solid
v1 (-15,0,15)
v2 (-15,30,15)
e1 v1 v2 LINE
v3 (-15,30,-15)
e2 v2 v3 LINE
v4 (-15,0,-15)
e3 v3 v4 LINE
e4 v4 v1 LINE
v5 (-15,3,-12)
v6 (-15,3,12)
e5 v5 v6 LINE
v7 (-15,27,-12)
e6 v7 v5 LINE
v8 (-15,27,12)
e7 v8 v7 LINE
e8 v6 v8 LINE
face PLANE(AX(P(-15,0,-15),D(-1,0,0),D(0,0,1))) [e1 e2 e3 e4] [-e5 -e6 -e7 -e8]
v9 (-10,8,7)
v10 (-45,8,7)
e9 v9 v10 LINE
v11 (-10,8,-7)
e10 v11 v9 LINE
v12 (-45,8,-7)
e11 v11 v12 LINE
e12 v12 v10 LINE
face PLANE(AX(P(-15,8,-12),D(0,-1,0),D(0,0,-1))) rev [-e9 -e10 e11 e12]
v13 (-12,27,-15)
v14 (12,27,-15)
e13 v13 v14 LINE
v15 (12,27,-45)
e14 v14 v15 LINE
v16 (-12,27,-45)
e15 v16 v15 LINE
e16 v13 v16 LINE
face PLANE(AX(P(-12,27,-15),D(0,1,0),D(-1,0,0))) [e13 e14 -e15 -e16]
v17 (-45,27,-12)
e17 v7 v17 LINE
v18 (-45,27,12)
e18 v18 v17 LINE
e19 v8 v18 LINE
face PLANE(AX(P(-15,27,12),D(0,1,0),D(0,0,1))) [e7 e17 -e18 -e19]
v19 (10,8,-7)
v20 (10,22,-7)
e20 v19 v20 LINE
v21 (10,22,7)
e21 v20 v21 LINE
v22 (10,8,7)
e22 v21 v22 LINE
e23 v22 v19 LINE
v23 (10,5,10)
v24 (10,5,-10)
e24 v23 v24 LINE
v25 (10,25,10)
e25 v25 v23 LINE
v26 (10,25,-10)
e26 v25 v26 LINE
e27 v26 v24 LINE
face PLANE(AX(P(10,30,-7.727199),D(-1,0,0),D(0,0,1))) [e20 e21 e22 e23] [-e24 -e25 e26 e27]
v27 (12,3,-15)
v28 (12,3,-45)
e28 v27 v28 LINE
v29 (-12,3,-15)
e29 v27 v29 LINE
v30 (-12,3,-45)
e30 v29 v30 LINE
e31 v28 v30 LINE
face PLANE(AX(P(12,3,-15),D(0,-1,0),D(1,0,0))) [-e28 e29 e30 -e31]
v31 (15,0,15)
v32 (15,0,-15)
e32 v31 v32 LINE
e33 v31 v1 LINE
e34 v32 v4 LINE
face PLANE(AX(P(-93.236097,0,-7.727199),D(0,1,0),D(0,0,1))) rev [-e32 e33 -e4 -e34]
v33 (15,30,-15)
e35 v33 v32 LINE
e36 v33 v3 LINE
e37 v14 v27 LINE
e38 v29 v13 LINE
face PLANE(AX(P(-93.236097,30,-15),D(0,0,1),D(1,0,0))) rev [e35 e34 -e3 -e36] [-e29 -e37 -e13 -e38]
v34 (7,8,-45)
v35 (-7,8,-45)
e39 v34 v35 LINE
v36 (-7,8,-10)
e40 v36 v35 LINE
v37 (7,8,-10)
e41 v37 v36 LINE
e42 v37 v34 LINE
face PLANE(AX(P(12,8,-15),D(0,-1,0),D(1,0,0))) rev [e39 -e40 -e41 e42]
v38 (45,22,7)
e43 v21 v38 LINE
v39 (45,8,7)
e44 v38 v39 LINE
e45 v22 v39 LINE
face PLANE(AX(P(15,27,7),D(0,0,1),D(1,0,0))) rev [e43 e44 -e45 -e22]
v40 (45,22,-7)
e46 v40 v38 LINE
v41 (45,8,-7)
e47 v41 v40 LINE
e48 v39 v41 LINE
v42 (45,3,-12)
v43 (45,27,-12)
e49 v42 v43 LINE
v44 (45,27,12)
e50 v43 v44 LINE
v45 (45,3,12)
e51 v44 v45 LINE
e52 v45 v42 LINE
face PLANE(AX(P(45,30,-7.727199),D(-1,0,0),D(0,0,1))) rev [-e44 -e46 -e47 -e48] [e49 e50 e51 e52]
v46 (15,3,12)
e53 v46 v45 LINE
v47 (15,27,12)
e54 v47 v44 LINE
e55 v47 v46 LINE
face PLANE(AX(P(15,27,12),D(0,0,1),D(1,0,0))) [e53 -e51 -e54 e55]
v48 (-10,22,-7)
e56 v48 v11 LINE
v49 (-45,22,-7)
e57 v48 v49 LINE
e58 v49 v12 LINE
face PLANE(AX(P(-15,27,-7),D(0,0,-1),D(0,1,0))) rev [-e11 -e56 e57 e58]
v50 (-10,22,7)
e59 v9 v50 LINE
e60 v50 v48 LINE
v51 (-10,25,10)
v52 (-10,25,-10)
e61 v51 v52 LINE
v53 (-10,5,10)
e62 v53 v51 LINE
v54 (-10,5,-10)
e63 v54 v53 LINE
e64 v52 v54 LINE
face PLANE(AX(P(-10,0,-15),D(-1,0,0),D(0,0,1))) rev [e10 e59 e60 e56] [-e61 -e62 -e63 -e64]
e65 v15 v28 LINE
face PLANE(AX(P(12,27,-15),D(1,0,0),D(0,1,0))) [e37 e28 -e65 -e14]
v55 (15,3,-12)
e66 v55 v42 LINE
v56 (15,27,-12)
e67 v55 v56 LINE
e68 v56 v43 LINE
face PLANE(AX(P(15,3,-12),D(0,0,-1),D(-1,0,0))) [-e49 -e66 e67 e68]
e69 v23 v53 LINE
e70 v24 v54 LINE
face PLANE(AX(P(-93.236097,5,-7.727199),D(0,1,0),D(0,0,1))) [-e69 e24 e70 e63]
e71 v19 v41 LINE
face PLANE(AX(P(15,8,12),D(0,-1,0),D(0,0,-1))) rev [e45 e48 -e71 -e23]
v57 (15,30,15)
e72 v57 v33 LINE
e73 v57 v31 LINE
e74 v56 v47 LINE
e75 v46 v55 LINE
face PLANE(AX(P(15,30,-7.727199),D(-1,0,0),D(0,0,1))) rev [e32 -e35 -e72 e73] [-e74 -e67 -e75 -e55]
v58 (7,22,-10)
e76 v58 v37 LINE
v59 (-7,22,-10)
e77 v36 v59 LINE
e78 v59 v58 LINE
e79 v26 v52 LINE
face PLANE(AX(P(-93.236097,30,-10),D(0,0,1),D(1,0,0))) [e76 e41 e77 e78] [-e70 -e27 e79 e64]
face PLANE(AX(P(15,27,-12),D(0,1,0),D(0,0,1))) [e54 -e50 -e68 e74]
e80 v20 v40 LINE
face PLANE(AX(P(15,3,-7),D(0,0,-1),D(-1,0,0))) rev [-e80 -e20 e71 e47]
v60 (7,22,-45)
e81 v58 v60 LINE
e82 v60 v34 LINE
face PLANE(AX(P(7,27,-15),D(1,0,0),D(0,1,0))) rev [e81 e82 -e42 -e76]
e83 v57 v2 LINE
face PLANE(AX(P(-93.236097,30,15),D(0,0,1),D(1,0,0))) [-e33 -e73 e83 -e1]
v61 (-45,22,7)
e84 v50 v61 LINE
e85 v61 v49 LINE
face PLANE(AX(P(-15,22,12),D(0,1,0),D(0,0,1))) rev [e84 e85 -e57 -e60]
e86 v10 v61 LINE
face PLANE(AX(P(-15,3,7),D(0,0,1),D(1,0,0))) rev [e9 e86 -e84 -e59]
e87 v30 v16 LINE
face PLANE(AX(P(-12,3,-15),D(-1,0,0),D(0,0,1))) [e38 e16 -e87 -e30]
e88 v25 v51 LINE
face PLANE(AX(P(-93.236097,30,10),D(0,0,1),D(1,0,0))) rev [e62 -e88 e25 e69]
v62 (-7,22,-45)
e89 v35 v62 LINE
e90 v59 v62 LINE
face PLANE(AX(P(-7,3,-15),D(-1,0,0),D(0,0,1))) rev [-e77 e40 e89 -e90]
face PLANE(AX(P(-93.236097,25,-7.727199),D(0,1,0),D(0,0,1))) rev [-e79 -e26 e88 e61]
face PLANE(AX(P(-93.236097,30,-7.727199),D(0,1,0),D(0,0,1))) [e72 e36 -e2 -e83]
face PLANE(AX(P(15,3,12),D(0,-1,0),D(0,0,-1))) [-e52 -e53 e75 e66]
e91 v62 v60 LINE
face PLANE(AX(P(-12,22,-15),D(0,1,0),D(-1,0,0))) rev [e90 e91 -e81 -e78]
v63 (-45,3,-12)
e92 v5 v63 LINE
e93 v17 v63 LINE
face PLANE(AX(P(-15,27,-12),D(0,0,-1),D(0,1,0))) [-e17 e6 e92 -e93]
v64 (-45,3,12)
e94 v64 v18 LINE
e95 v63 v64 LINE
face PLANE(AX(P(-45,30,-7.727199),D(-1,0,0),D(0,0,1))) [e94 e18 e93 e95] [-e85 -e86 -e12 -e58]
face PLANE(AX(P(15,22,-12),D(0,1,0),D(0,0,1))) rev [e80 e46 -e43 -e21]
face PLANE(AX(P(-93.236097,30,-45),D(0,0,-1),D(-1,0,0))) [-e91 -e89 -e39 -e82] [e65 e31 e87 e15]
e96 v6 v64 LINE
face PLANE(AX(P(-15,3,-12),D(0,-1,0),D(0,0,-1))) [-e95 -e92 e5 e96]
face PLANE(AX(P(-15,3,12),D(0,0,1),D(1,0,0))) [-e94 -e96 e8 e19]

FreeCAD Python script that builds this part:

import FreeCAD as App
import Part
import Sketcher

V = App.Vector
Q = App.Units.Quantity


def faces_at(feature, points):
    """Names of the faces that lie closest to the given points."""
    faces = feature.Shape.Faces
    near = lambda p: min(range(len(faces)), key=lambda i: faces[i].distToShape(Part.Vertex(*p))[0])
    return sorted({f"Face{near(p) + 1}" for p in points})


def add_polygon(sketch, points):
    """Adds a closed chain of lines whose ends are joined by coincident constraints."""
    first, n = sketch.GeometryCount, len(points)
    for a, b in zip(points, points[1:] + points[:1]):
        sketch.addGeometry(Part.LineSegment(App.Vector(*a, 0), App.Vector(*b, 0)), False)
    for i in range(n):
        sketch.addConstraint(Sketcher.Constraint("Coincident", first + i, 2, first + (i + 1) % n, 1))

doc = App.newDocument("Part")
params = doc.addObject("Spreadsheet::Sheet", "Params")
for row, (alias, value) in enumerate([
    ("sketch1_width", "30 mm"),
    ("pad1_length", "30 mm"),
    ("sketch2_width", "30 mm"),
    ("sketch2_width2", "24 mm"),
    ("pocket1_length", "30 mm"),
    ("sketch3_width", "30 mm"),
    ("sketch3_width2", "24 mm"),
    ("pocket2_length", "30 mm"),
    ("sketch4_width", "30 mm"),
    ("sketch4_width2", "24 mm"),
    ("pocket3_length", "30 mm"),
    ("thickness_wall", "5 mm"),
], start=1):
    params.set(f"A{row}", alias)
    params.set(f"B{row}", "=" + value)
    params.setAlias(f"B{row}", alias)

body = doc.addObject("PartDesign::Body", "Body")

# Sketch on XZ plane
sketch1 = doc.addObject("Sketcher::SketchObject", "Sketch")
body.addObject(sketch1)
sketch1.AttachmentSupport = (doc.XZ_Plane, [""])
sketch1.MapMode = "FlatFace"
add_polygon(sketch1, [(-15, -45), (-15, -15), (-45, -15), (-45, 15), (45, 15), (45, -15), (15, -15), (15, -45)])  # lines 0-7
sketch1.addConstraint(Sketcher.Constraint("Vertical", 0))
sketch1.addConstraint(Sketcher.Constraint("Horizontal", 1))
sketch1.addConstraint(Sketcher.Constraint("Vertical", 2))
sketch1.addConstraint(Sketcher.Constraint("Horizontal", 3))
sketch1.addConstraint(Sketcher.Constraint("Vertical", 4))
sketch1.addConstraint(Sketcher.Constraint("Horizontal", 5))
sketch1.addConstraint(Sketcher.Constraint("Vertical", 6))
sketch1.addConstraint(Sketcher.Constraint("Horizontal", 7))
sketch1.addConstraint(Sketcher.Constraint("Symmetric", 1, 2, 3, 2, -1, 1))
sketch1.addConstraint(Sketcher.Constraint("Symmetric", 0, 2, 5, 2, -2))
sketch1.addConstraint(Sketcher.Constraint("Equal", 5, 7))
sketch1.addConstraint(Sketcher.Constraint("Equal", 7, 0))
sketch1.addConstraint(Sketcher.Constraint("Equal", 0, 2))
sketch1.addConstraint(Sketcher.Constraint("DistanceX", 1, 2, 1, 1, Q("30 mm")))
sketch1.setExpression("Constraints[21]", "Params.sketch1_width")
pad1 = doc.addObject("PartDesign::Pad", "Pad")
body.addObject(pad1)
pad1.Profile = sketch1
pad1.setExpression("Length", "Params.pad1_length")
pad1.Reversed = True

# Sketch on YZ plane
sketch2 = doc.addObject("Sketcher::SketchObject", "Sketch001")
body.addObject(sketch2)
sketch2.AttachmentSupport = (doc.YZ_Plane, [""])
sketch2.MapMode = "FlatFace"
sketch2.AttachmentOffset = App.Placement(V(0, 0, 45), App.Rotation())
add_polygon(sketch2, [(30, 15), (0, 15), (0, -15), (30, -15)])  # lines 0-3
add_polygon(sketch2, [(3, -12), (3, 12), (27, 12), (27, -12)])  # lines 4-7
sketch2.addConstraint(Sketcher.Constraint("Horizontal", 0))
sketch2.addConstraint(Sketcher.Constraint("Vertical", 1))
sketch2.addConstraint(Sketcher.Constraint("Horizontal", 2))
sketch2.addConstraint(Sketcher.Constraint("Vertical", 3))
sketch2.addConstraint(Sketcher.Constraint("Vertical", 4))
sketch2.addConstraint(Sketcher.Constraint("Horizontal", 5))
sketch2.addConstraint(Sketcher.Constraint("Vertical", 6))
sketch2.addConstraint(Sketcher.Constraint("Horizontal", 7))
sketch2.addConstraint(Sketcher.Constraint("Symmetric", 0, 2, 1, 2, -1, 1))
sketch2.addConstraint(Sketcher.Constraint("Equal", 2, 1))
sketch2.addConstraint(Sketcher.Constraint("Equal", 7, 4))
sketch2.addConstraint(Sketcher.Constraint("DistanceX", 0, 2, 0, 1, Q("30 mm")))
sketch2.addConstraint(Sketcher.Constraint("DistanceX", 5, 1, 5, 2, Q("24 mm")))
sketch2.addConstraint(Sketcher.Constraint("DistanceX", -1, 1, 4, 2, Q("3 mm")))
sketch2.addConstraint(Sketcher.Constraint("DistanceY", -1, 1, 4, 2, Q("12 mm")))
sketch2.setExpression("Constraints[19]", "Params.sketch2_width")
sketch2.setExpression("Constraints[20]", "Params.sketch2_width2")
pocket1 = doc.addObject("PartDesign::Pocket", "Pocket")
body.addObject(pocket1)
pocket1.Profile = sketch2
pocket1.setExpression("Length", "Params.pocket1_length")

# Sketch on XY plane
sketch3 = doc.addObject("Sketcher::SketchObject", "Sketch002")
body.addObject(sketch3)
sketch3.AttachmentSupport = (doc.XY_Plane, [""])
sketch3.MapMode = "FlatFace"
sketch3.AttachmentOffset = App.Placement(V(0, 0, -45), App.Rotation())
add_polygon(sketch3, [(15, 30), (15, 0), (-15, 0), (-15, 30)])  # lines 0-3
add_polygon(sketch3, [(-12, 3), (12, 3), (12, 27), (-12, 27)])  # lines 4-7
sketch3.addConstraint(Sketcher.Constraint("Vertical", 0))
sketch3.addConstraint(Sketcher.Constraint("Horizontal", 1))
sketch3.addConstraint(Sketcher.Constraint("Vertical", 2))
sketch3.addConstraint(Sketcher.Constraint("Horizontal", 3))
sketch3.addConstraint(Sketcher.Constraint("Horizontal", 4))
sketch3.addConstraint(Sketcher.Constraint("Vertical", 5))
sketch3.addConstraint(Sketcher.Constraint("Horizontal", 6))
sketch3.addConstraint(Sketcher.Constraint("Vertical", 7))
sketch3.addConstraint(Sketcher.Constraint("Symmetric", 0, 2, 1, 2, -1, 1))
sketch3.addConstraint(Sketcher.Constraint("Equal", 3, 0))
sketch3.addConstraint(Sketcher.Constraint("Equal", 6, 5))
sketch3.addConstraint(Sketcher.Constraint("DistanceX", 1, 2, 1, 1, Q("30 mm")))
sketch3.addConstraint(Sketcher.Constraint("DistanceX", 4, 1, 4, 2, Q("24 mm")))
sketch3.addConstraint(Sketcher.Constraint("DistanceX", -1, 1, 4, 2, Q("12 mm")))
sketch3.addConstraint(Sketcher.Constraint("DistanceY", -1, 1, 4, 2, Q("3 mm")))
sketch3.setExpression("Constraints[19]", "Params.sketch3_width")
sketch3.setExpression("Constraints[20]", "Params.sketch3_width2")
pocket2 = doc.addObject("PartDesign::Pocket", "Pocket001")
body.addObject(pocket2)
pocket2.Profile = sketch3
pocket2.setExpression("Length", "Params.pocket2_length")
pocket2.Reversed = True

# Sketch on YZ plane
sketch4 = doc.addObject("Sketcher::SketchObject", "Sketch003")
body.addObject(sketch4)
sketch4.AttachmentSupport = (doc.YZ_Plane, [""])
sketch4.MapMode = "FlatFace"
sketch4.AttachmentOffset = App.Placement(V(0, 0, -45), App.Rotation())
add_polygon(sketch4, [(30, -15), (0, -15), (0, 15), (30, 15)])  # lines 0-3
add_polygon(sketch4, [(3, 12), (3, -12), (27, -12), (27, 12)])  # lines 4-7
sketch4.addConstraint(Sketcher.Constraint("Horizontal", 0))
sketch4.addConstraint(Sketcher.Constraint("Vertical", 1))
sketch4.addConstraint(Sketcher.Constraint("Horizontal", 2))
sketch4.addConstraint(Sketcher.Constraint("Vertical", 3))
sketch4.addConstraint(Sketcher.Constraint("Vertical", 4))
sketch4.addConstraint(Sketcher.Constraint("Horizontal", 5))
sketch4.addConstraint(Sketcher.Constraint("Vertical", 6))
sketch4.addConstraint(Sketcher.Constraint("Horizontal", 7))
sketch4.addConstraint(Sketcher.Constraint("Symmetric", 0, 2, 1, 2, -1, 1))
sketch4.addConstraint(Sketcher.Constraint("Equal", 2, 1))
sketch4.addConstraint(Sketcher.Constraint("Equal", 7, 4))
sketch4.addConstraint(Sketcher.Constraint("DistanceX", 0, 2, 0, 1, Q("30 mm")))
sketch4.addConstraint(Sketcher.Constraint("DistanceX", 5, 1, 5, 2, Q("24 mm")))
sketch4.addConstraint(Sketcher.Constraint("DistanceX", -1, 1, 4, 2, Q("3 mm")))
sketch4.addConstraint(Sketcher.Constraint("DistanceY", 4, 2, -1, 1, Q("12 mm")))
sketch4.setExpression("Constraints[19]", "Params.sketch4_width")
sketch4.setExpression("Constraints[20]", "Params.sketch4_width2")
pocket3 = doc.addObject("PartDesign::Pocket", "Pocket002")
body.addObject(pocket3)
pocket3.Profile = sketch4
pocket3.setExpression("Length", "Params.pocket3_length")
pocket3.Reversed = True
doc.recompute()

thickness = doc.addObject("PartDesign::Thickness", "Thickness")
body.addObject(thickness)
thickness.Base = (pocket3, faces_at(pocket3, [(45, 15, 0), (0, 15, -45), (-45, 15, 0)]))
thickness.setExpression("Value", "Params.thickness_wall")
thickness.Reversed = True
thickness.Join = "Intersection"

doc.recompute()
